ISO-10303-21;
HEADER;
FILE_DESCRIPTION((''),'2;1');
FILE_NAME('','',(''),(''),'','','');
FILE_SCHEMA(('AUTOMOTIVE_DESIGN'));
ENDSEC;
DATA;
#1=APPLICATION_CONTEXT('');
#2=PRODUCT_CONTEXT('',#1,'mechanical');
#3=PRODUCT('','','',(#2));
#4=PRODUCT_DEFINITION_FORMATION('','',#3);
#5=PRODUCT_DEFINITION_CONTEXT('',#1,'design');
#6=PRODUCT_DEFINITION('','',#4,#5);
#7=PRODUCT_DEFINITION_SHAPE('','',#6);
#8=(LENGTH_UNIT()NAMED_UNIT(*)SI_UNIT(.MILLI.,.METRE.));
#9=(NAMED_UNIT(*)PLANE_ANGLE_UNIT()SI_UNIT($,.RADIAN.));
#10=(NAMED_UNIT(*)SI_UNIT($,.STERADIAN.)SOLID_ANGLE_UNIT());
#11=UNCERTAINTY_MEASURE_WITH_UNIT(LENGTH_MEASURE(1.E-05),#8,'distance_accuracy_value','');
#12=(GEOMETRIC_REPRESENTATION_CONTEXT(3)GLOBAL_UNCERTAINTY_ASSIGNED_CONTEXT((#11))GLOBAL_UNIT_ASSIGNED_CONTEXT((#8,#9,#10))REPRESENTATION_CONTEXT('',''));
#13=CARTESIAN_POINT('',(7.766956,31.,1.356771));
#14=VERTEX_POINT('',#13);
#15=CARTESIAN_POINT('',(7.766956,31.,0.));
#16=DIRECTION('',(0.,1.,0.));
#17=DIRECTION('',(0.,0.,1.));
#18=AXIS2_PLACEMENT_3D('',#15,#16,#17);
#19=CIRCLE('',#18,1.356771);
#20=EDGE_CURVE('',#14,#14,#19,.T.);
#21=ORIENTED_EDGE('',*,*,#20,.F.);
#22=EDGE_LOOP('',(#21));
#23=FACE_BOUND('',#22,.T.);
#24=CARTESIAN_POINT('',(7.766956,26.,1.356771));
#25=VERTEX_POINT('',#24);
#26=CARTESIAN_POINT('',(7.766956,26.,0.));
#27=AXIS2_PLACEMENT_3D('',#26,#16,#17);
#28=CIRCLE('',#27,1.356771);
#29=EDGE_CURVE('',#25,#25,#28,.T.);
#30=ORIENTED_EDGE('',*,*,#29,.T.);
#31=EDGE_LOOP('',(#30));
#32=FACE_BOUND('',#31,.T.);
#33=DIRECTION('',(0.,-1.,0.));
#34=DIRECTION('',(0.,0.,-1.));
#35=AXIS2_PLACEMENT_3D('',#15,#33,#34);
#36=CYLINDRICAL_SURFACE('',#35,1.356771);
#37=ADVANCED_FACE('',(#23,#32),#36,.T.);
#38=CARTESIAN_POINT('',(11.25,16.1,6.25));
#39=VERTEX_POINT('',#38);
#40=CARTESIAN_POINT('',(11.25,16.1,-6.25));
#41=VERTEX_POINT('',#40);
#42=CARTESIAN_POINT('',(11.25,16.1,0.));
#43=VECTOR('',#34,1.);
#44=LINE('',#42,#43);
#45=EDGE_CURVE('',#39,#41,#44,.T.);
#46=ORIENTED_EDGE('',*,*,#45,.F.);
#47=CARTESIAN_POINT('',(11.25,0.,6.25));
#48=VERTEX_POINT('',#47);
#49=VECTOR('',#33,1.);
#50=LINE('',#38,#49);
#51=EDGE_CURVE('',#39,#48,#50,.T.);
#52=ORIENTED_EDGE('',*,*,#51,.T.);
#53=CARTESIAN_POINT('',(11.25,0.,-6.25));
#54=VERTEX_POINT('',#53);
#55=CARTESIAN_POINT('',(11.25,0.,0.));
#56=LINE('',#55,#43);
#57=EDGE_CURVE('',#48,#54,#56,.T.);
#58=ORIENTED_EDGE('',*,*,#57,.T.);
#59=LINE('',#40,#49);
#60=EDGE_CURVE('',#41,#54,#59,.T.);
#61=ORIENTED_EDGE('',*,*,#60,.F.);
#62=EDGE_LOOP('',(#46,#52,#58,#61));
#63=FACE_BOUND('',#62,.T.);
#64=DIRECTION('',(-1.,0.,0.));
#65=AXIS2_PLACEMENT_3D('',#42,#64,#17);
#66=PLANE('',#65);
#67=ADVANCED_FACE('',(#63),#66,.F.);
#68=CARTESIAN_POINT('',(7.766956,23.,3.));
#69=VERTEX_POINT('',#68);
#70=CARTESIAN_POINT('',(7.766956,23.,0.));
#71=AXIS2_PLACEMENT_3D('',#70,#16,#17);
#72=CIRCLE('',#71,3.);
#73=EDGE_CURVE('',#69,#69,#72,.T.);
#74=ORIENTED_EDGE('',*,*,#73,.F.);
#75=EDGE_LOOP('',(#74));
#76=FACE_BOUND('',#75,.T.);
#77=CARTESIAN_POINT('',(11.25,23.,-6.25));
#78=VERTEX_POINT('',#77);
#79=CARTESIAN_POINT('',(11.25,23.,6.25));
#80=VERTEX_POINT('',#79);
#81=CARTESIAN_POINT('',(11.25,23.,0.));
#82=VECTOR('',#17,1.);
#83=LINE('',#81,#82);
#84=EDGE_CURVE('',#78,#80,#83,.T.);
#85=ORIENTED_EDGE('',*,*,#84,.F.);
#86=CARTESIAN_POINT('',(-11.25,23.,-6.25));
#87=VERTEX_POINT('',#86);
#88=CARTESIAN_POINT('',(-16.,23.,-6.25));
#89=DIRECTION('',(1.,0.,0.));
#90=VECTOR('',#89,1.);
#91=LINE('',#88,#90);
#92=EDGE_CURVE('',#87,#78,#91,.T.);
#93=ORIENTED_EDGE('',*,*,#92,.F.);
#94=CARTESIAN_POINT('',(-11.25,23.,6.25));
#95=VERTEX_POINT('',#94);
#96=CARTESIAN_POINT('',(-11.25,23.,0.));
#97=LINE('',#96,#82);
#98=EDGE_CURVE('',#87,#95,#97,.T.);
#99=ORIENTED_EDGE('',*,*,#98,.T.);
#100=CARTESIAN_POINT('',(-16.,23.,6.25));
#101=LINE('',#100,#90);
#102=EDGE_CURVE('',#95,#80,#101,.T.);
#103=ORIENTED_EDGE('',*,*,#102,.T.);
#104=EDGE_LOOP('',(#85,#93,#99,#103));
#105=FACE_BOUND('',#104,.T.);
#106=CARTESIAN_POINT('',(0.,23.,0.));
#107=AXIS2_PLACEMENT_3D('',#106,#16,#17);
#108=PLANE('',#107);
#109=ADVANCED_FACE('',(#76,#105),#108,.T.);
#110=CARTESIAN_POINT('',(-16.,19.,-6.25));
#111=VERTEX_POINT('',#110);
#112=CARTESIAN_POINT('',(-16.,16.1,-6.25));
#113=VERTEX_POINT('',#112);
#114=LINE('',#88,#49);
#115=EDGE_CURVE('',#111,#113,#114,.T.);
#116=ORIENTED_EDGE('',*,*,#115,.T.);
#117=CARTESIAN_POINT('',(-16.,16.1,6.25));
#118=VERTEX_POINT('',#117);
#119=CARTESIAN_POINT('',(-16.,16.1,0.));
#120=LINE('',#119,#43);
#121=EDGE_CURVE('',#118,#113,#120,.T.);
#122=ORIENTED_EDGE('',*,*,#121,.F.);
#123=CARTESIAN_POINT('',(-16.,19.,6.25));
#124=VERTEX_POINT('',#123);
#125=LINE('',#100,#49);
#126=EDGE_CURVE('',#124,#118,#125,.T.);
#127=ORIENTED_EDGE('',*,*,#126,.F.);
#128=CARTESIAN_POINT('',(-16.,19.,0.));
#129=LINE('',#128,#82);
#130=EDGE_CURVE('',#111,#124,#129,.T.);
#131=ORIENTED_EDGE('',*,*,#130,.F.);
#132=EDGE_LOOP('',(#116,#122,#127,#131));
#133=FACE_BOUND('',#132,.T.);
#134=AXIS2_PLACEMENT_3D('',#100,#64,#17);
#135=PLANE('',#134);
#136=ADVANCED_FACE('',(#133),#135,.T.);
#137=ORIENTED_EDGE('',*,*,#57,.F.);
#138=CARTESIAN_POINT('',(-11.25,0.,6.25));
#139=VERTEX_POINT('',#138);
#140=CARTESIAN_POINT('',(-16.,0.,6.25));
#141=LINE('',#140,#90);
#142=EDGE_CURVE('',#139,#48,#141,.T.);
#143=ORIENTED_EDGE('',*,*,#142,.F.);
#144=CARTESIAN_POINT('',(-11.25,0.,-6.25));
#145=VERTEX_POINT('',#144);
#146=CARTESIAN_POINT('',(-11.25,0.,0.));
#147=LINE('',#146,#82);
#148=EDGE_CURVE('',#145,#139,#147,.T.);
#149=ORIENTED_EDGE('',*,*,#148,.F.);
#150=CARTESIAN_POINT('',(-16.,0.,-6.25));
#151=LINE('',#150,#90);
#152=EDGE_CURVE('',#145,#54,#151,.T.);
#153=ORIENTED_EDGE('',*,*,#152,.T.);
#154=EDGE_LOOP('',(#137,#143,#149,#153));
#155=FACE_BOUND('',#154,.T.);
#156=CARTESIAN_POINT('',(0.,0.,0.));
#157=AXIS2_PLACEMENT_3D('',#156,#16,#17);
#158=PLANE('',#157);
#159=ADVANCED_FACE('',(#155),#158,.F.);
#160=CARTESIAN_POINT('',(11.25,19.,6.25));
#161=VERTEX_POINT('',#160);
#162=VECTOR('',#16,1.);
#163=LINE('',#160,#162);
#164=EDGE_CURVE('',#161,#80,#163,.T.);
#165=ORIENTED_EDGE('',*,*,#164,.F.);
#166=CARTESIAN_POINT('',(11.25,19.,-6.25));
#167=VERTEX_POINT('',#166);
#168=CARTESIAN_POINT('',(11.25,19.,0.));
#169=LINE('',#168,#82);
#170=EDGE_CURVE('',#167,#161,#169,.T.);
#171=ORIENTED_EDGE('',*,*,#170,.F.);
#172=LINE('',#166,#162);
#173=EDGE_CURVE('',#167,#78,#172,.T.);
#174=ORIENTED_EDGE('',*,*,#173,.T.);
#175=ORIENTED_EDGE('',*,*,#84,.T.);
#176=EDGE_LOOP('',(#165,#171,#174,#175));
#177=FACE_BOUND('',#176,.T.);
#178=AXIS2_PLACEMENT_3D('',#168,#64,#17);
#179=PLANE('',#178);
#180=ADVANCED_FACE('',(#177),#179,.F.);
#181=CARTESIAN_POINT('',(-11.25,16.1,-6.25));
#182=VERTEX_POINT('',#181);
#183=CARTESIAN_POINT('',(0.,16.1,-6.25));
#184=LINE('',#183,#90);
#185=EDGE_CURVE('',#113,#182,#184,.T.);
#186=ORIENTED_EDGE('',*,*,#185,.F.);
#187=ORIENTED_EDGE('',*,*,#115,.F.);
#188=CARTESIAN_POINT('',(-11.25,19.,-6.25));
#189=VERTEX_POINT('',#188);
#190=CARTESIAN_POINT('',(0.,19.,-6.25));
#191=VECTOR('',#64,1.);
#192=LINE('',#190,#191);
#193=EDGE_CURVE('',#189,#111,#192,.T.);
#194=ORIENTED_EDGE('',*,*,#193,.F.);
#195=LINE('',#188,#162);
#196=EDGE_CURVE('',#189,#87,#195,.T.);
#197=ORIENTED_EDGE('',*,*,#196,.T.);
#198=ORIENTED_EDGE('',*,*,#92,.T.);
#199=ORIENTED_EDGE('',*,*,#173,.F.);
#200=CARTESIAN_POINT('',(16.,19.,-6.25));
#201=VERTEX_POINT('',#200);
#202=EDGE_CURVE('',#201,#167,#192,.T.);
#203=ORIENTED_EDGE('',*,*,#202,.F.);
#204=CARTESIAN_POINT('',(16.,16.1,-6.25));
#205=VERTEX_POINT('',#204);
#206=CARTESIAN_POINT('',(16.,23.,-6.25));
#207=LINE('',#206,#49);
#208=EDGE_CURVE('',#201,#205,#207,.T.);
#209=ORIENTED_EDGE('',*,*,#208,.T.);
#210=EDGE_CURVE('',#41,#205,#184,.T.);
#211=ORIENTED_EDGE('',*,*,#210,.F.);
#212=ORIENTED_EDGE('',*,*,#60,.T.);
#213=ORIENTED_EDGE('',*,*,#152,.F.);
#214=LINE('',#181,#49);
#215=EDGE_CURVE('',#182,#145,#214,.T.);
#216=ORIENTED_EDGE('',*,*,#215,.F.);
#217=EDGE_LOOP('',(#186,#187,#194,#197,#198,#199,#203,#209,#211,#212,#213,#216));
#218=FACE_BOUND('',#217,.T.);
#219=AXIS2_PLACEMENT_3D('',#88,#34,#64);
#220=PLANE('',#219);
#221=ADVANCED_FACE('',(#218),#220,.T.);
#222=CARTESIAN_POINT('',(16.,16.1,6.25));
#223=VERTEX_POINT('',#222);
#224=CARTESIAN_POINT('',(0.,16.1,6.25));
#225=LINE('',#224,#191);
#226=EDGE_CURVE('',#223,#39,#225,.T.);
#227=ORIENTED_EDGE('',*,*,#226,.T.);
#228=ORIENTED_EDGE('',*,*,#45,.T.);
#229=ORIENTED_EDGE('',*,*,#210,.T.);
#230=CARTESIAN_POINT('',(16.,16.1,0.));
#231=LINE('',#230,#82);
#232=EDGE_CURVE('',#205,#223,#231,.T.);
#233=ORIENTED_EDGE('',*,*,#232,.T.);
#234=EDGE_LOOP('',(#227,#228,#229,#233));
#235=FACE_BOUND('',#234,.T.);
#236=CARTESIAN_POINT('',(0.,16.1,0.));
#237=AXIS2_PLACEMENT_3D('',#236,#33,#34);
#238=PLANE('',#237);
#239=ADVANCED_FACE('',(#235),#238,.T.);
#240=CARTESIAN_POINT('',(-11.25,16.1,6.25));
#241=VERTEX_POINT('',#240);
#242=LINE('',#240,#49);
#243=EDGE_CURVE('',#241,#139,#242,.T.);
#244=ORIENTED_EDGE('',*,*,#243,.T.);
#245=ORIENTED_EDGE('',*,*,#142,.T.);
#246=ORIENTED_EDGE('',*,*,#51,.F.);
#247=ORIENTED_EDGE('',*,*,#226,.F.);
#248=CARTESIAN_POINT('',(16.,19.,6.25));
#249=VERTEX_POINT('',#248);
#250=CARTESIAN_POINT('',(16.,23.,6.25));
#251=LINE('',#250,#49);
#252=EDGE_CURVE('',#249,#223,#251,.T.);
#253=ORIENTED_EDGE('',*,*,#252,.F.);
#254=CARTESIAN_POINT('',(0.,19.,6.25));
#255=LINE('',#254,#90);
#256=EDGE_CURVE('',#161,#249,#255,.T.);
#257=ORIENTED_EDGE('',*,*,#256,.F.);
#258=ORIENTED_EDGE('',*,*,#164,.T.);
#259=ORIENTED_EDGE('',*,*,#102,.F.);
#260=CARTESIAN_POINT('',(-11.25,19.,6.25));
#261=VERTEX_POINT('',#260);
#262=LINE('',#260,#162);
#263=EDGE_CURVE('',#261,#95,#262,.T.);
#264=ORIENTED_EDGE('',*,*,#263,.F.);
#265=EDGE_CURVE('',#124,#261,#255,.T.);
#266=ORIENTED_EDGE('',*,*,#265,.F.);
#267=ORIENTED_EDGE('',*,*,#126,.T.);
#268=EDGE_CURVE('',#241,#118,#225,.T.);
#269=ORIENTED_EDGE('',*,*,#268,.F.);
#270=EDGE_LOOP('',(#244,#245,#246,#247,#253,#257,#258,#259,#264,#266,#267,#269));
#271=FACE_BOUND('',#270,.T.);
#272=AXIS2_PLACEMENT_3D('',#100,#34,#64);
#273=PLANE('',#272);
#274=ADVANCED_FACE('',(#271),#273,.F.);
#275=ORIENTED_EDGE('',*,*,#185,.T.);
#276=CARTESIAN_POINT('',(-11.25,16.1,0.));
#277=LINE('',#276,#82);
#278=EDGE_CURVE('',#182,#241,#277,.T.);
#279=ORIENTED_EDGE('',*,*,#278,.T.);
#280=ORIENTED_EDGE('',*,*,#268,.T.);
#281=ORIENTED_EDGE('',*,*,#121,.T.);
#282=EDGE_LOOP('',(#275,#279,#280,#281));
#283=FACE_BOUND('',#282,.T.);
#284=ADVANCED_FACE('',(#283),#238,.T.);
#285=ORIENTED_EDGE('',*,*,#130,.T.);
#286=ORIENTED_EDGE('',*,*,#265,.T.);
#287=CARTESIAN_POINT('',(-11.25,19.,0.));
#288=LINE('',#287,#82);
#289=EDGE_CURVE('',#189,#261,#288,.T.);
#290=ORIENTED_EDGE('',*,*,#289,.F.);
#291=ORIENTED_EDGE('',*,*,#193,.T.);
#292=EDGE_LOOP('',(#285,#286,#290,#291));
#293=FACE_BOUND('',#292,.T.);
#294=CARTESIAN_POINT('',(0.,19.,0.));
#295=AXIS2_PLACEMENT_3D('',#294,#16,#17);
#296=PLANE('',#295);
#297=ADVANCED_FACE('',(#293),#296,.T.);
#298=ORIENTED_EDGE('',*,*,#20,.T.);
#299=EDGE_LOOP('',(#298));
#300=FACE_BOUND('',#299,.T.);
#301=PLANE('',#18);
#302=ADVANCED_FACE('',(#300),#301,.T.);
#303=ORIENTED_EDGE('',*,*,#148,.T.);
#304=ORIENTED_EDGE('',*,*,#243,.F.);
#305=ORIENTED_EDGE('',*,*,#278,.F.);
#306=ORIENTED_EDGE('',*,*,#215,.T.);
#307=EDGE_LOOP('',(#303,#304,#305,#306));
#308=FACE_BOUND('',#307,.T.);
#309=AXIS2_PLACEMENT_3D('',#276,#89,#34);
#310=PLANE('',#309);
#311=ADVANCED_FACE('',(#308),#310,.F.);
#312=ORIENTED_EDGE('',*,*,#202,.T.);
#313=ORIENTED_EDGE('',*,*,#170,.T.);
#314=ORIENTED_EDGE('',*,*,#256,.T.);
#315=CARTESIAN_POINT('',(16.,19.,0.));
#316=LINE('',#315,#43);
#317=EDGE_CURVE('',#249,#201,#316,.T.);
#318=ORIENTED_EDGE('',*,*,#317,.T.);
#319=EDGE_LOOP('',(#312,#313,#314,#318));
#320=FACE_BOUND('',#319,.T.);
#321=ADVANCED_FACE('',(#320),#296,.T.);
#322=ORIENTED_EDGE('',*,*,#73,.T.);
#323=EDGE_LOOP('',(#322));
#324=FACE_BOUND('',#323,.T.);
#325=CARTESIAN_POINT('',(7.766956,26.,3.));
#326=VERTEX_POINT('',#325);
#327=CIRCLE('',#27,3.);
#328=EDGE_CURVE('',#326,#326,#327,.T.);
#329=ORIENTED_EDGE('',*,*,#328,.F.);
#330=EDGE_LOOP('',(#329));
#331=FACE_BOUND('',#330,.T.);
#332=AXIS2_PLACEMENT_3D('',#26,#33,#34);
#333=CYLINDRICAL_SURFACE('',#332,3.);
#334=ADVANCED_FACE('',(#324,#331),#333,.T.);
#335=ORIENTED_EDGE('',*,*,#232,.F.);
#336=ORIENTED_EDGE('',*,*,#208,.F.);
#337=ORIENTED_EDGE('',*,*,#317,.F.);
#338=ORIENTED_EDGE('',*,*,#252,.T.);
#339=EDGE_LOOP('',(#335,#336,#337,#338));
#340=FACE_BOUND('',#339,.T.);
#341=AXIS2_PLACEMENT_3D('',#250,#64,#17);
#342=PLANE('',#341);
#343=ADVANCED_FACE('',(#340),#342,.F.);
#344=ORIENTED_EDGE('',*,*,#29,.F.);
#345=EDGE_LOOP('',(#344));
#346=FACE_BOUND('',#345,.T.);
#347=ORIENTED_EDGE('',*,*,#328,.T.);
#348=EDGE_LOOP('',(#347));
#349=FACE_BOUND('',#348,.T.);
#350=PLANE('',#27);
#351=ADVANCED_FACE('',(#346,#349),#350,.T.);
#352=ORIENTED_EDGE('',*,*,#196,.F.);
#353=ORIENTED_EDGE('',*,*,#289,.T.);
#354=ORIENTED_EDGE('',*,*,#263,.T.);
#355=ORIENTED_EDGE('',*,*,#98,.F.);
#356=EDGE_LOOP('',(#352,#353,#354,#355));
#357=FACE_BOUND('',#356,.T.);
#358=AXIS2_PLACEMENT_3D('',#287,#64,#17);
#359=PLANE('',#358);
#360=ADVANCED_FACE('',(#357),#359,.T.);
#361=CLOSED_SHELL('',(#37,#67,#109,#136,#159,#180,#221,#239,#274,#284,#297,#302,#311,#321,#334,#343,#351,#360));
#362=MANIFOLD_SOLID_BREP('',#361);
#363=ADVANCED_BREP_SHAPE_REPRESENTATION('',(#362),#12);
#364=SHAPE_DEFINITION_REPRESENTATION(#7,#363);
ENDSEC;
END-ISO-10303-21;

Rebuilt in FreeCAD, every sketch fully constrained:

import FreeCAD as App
import Part
import Sketcher


def add_polygon(sketch, points):
    """Adds a closed chain of lines whose ends are joined by coincident constraints."""
    first, n = sketch.GeometryCount, len(points)
    for a, b in zip(points, points[1:] + points[:1]):
        sketch.addGeometry(Part.LineSegment(App.Vector(*a, 0), App.Vector(*b, 0)), False)
    for i in range(n):
        sketch.addConstraint(Sketcher.Constraint("Coincident", first + i, 2, first + (i + 1) % n, 1))

doc = App.newDocument("Part")
body = doc.addObject("PartDesign::Body", "Body")

# Sketch on XZ plane
sketch1 = body.newObject("Sketcher::SketchObject", "Sketch")
sketch1.AttachmentSupport = (doc.getObject("XZ_Plane"), [""])
sketch1.MapMode = "FlatFace"
add_polygon(sketch1, [(-16, -6), (-16, 6), (16, 6), (16, -6)])  # lines 0-3
sketch1.addConstraint(Sketcher.Constraint("Vertical", 0))
sketch1.addConstraint(Sketcher.Constraint("Horizontal", 1))
sketch1.addConstraint(Sketcher.Constraint("Vertical", 2))
sketch1.addConstraint(Sketcher.Constraint("Horizontal", 3))
sketch1.addConstraint(Sketcher.Constraint("Symmetric", 0, 2, 2, 2, -1, 1))
sketch1.addConstraint(Sketcher.Constraint("DistanceX", 1, 1, 1, 2, 32.0))
sketch1.addConstraint(Sketcher.Constraint("DistanceY", 0, 1, 0, 2, 12.5))
pad1 = body.newObject("PartDesign::Pad", "Pad")
pad1.Profile = sketch1
pad1.Length = 23
pad1.Reversed = True

# Sketch on XZ plane
sketch2 = body.newObject("Sketcher::SketchObject", "Sketch001")
sketch2.AttachmentSupport = (doc.getObject("XZ_Plane"), [""])
sketch2.MapMode = "FlatFace"
sketch2.AttachmentOffset = App.Placement(App.Vector(0, 0, -23), App.Rotation())
add_polygon(sketch2, [(-16, -6.2), (-16, 6.2), (-11.2, 6.2), (-11.2, -6.2)])  # lines 0-3
add_polygon(sketch2, [(11.2, -6.2), (11.2, 6.2), (16, 6.2), (16, -6.2)])  # lines 4-7
sketch2.addConstraint(Sketcher.Constraint("Vertical", 0))
sketch2.addConstraint(Sketcher.Constraint("Horizontal", 1))
sketch2.addConstraint(Sketcher.Constraint("Vertical", 2))
sketch2.addConstraint(Sketcher.Constraint("Horizontal", 3))
sketch2.addConstraint(Sketcher.Constraint("Vertical", 4))
sketch2.addConstraint(Sketcher.Constraint("Horizontal", 5))
sketch2.addConstraint(Sketcher.Constraint("Vertical", 6))
sketch2.addConstraint(Sketcher.Constraint("Horizontal", 7))
sketch2.addConstraint(Sketcher.Constraint("Symmetric", 2, 2, 4, 2, -1, 1))
sketch2.addConstraint(Sketcher.Constraint("Symmetric", 0, 2, 6, 2, -1, 1))
sketch2.addConstraint(Sketcher.Constraint("Horizontal", 1, 2, 4, 2))
sketch2.addConstraint(Sketcher.Constraint("DistanceY", 0, 1, 0, 2, 12.5))
sketch2.addConstraint(Sketcher.Constraint("DistanceX", 0, 2, -1, 1, 16.0))
sketch2.addConstraint(Sketcher.Constraint("DistanceX", 1, 1, 1, 2, 4.75))
pocket1 = body.newObject("PartDesign::Pocket", "Pocket")
pocket1.Profile = sketch2
pocket1.Length = 4
pocket1.Reversed = True

# Sketch on XZ plane
sketch3 = body.newObject("Sketcher::SketchObject", "Sketch002")
sketch3.AttachmentSupport = (doc.getObject("XZ_Plane"), [""])
sketch3.MapMode = "FlatFace"
add_polygon(sketch3, [(11.2, 6.2), (11.2, -6.2), (16, -6.2), (16, 6.2)])  # lines 0-3
add_polygon(sketch3, [(-16, 6.2), (-16, -6.2), (-11.2, -6.2), (-11.2, 6.2)])  # lines 4-7
sketch3.addConstraint(Sketcher.Constraint("Vertical", 0))
sketch3.addConstraint(Sketcher.Constraint("Horizontal", 1))
sketch3.addConstraint(Sketcher.Constraint("Vertical", 2))
sketch3.addConstraint(Sketcher.Constraint("Horizontal", 3))
sketch3.addConstraint(Sketcher.Constraint("Vertical", 4))
sketch3.addConstraint(Sketcher.Constraint("Horizontal", 5))
sketch3.addConstraint(Sketcher.Constraint("Vertical", 6))
sketch3.addConstraint(Sketcher.Constraint("Horizontal", 7))
sketch3.addConstraint(Sketcher.Constraint("Symmetric", 2, 2, 4, 2, -1, 1))
sketch3.addConstraint(Sketcher.Constraint("Symmetric", 0, 2, 6, 2, -1, 1))
sketch3.addConstraint(Sketcher.Constraint("Horizontal", 1, 2, 4, 2))
sketch3.addConstraint(Sketcher.Constraint("DistanceY", 0, 2, 0, 1, 12.5))
sketch3.addConstraint(Sketcher.Constraint("DistanceX", -1, 1, 1, 2, 16.0))
sketch3.addConstraint(Sketcher.Constraint("DistanceX", 1, 1, 1, 2, 4.75))
pocket2 = body.newObject("PartDesign::Pocket", "Pocket001")
pocket2.Profile = sketch3
pocket2.Length = 16.1

# Sketch on XZ plane
sketch4 = body.newObject("Sketcher::SketchObject", "Sketch003")
sketch4.AttachmentSupport = (doc.getObject("XZ_Plane"), [""])
sketch4.MapMode = "FlatFace"
sketch4.AttachmentOffset = App.Placement(App.Vector(0, 0, -23), App.Rotation())
sketch4.addGeometry(Part.Circle(App.Vector(7.8, 0, 0), App.Vector(0, 0, 1), 3), False)
sketch4.addConstraint(Sketcher.Constraint("PointOnObject", 0, 3, -1))
sketch4.addConstraint(Sketcher.Constraint("Diameter", 0, 6.0))
sketch4.addConstraint(Sketcher.Constraint("DistanceX", -1, 1, 0, 3, 7.766956))
pad2 = body.newObject("PartDesign::Pad", "Pad001")
pad2.Profile = sketch4
pad2.Length = 3
pad2.Reversed = True

# Sketch on XZ plane
sketch5 = body.newObject("Sketcher::SketchObject", "Sketch004")
sketch5.AttachmentSupport = (doc.getObject("XZ_Plane"), [""])
sketch5.MapMode = "FlatFace"
sketch5.AttachmentOffset = App.Placement(App.Vector(0, 0, -26), App.Rotation())
sketch5.addGeometry(Part.Circle(App.Vector(7.8, 0, 0), App.Vector(0, 0, 1), 1.4), False)
sketch5.addConstraint(Sketcher.Constraint("PointOnObject", 0, 3, -1))
sketch5.addConstraint(Sketcher.Constraint("Diameter", 0, 2.713542))
sketch5.addConstraint(Sketcher.Constraint("DistanceX", -1, 1, 0, 3, 7.766956))
pad3 = body.newObject("PartDesign::Pad", "Pad002")
pad3.Profile = sketch5
pad3.Length = 5
pad3.Reversed = True

doc.recompute()
